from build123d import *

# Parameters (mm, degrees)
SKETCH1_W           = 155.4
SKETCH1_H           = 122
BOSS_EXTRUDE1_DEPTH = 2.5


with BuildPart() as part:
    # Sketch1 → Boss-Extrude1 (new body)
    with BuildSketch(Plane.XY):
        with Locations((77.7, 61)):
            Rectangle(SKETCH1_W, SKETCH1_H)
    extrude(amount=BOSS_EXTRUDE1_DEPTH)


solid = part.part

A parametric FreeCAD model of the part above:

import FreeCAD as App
import Part
import Sketcher
from FreeCAD import Vector


def add_polygon(sketch, points):
    """Adds a closed chain of lines whose ends are joined by coincident constraints."""
    first, n = sketch.GeometryCount, len(points)
    for a, b in zip(points, points[1:] + points[:1]):
        sketch.addGeometry(Part.LineSegment(App.Vector(*a, 0), App.Vector(*b, 0)), False)
    for i in range(n):
        sketch.addConstraint(Sketcher.Constraint("Coincident", first + i, 2, first + (i + 1) % n, 1))

doc = App.newDocument("Part")
body = doc.addObject("PartDesign::Body", "Body")

# Sketch on XY plane
sketch1 = doc.addObject("Sketcher::SketchObject", "Sketch")
body.addObject(sketch1)
sketch1.AttachmentSupport = (doc.XY_Plane, [""])
sketch1.MapMode = "FlatFace"
add_polygon(sketch1, [(0, 122), (0, 0), (155, 0), (155, 122)])  # lines 0-3
sketch1.addConstraint([
    Sketcher.Constraint("Vertical", 0),
    Sketcher.Constraint("Horizontal", 1),
    Sketcher.Constraint("Vertical", 2),
    Sketcher.Constraint("Horizontal", 3),
    Sketcher.Constraint("Coincident", 0, 2, -1, 1),
    Sketcher.Constraint("DistanceY", 0, 2, 0, 1, 122.0),
    Sketcher.Constraint("DistanceX", 1, 1, 1, 2, 155.4),
])
pad1 = doc.addObject("PartDesign::Pad", "Pad")
body.addObject(pad1)
pad1.Profile = sketch1
pad1.Length = 2.5

doc.recompute()
